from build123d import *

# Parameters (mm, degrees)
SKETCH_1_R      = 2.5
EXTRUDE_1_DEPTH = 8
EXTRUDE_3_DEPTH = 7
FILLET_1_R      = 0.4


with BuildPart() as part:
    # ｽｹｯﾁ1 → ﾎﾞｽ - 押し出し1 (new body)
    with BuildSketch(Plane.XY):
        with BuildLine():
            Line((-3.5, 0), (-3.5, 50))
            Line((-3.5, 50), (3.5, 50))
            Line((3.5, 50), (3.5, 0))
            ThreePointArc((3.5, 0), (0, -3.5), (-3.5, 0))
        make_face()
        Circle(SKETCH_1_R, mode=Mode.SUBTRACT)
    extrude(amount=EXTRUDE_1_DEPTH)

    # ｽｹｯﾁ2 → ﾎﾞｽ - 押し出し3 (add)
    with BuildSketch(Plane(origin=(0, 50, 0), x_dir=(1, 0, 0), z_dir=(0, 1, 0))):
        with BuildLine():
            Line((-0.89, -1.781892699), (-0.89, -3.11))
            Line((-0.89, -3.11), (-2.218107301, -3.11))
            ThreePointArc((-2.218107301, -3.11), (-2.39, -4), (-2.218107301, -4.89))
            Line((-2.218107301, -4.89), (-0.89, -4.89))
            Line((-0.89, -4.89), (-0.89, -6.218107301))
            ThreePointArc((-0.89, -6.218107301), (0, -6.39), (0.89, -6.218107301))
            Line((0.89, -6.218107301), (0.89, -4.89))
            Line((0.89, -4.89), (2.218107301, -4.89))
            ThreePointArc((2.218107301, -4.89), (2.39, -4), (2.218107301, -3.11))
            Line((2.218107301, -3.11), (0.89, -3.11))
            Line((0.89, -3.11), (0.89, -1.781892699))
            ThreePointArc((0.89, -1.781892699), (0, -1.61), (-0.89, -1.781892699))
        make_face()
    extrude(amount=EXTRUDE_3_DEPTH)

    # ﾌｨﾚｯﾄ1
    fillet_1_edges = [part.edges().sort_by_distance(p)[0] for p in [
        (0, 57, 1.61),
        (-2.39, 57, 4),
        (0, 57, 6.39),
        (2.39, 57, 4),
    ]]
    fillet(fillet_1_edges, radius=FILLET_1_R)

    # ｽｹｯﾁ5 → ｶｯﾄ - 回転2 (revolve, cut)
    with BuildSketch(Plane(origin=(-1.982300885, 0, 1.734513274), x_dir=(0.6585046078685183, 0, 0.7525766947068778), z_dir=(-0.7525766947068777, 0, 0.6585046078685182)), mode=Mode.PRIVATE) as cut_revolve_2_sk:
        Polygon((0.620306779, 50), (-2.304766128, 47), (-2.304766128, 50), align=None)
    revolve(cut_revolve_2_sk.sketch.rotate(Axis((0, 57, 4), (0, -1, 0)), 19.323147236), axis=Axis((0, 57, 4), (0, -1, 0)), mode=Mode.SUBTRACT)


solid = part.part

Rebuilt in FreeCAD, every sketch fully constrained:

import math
import FreeCAD as App
import Part
import Sketcher
from FreeCAD import Vector


def edges_at(feature, points):
    """Names of the edges that pass closest to the given points."""
    edges = feature.Shape.Edges
    near = lambda p: min(range(len(edges)), key=lambda i: edges[i].distToShape(Part.Vertex(*p))[0])
    return sorted({f"Edge{near(p) + 1}" for p in points})

doc = App.newDocument("Part")
params = doc.addObject("Spreadsheet::Sheet", "Params")
for row, (alias, value) in enumerate([
    ("sketch1_diameter", "5 mm"),
    ("sketch1_radius", "3.5 mm"),
    ("sketch1_height", "50 mm"),
    ("pad1_length", "8 mm"),
    ("sketch2_radius", "2.39 mm"),
    ("pad2_length", "7 mm"),
    ("fillet_radius", "0.4 mm"),
    ("sketch3_height", "3 mm"),
    ("groove_angle", "360 deg"),
], start=1):
    params.set(f"A{row}", alias)
    params.set(f"B{row}", "=" + value)
    params.setAlias(f"B{row}", alias)

body = doc.addObject("PartDesign::Body", "Body")

# Sketch on XY plane
sketch1 = body.newObject("Sketcher::SketchObject", "Sketch")
sketch1.AttachmentSupport = (doc.getObject("XY_Plane"), [""])
sketch1.MapMode = "FlatFace"
sketch1.addGeometry([
    Part.LineSegment(Vector(-3.5, 50, 0), Vector(-3.5, 0, 0)),  # 0
    Part.ArcOfCircle(Part.Circle(Vector(0, 0, 0), Vector(0, 0, 1), 3.5), math.radians(180), math.radians(360)),  # 1
    Part.LineSegment(Vector(3.5, 0, 0), Vector(3.5, 50, 0)),  # 2
    Part.LineSegment(Vector(3.5, 50, 0), Vector(-3.5, 50, 0)),  # 3
    Part.Circle(Vector(0, 0, 0), Vector(0, 0, 1), 2.5),  # 4
], False)
sketch1.addConstraint([
    Sketcher.Constraint("Tangent", 0, 2, 1, 1),
    Sketcher.Constraint("Tangent", 1, 2, 2, 1),
    Sketcher.Constraint("Coincident", 2, 2, 3, 1),
    Sketcher.Constraint("Coincident", 3, 2, 0, 1),
    Sketcher.Constraint("Vertical", 0),
    Sketcher.Constraint("Vertical", 2),
    Sketcher.Constraint("Horizontal", 3),
    Sketcher.Constraint("Coincident", 1, 3, -1, 1),
    Sketcher.Constraint("Coincident", 4, 3, -1, 1),
    Sketcher.Constraint("Diameter", 4, 5.0),
    Sketcher.Constraint("Radius", 1, 3.5),
    Sketcher.Constraint("DistanceY", 0, 2, 0, 1, 50.0),
])
sketch1.setExpression("Constraints[9]", "Params.sketch1_diameter")
sketch1.setExpression("Constraints[10]", "Params.sketch1_radius")
sketch1.setExpression("Constraints[11]", "Params.sketch1_height")
pad1 = body.newObject("PartDesign::Pad", "Pad")
pad1.Profile = sketch1
pad1.setExpression("Length", "Params.pad1_length")

# Sketch on XZ plane
sketch2 = body.newObject("Sketcher::SketchObject", "Sketch001")
sketch2.AttachmentSupport = (doc.getObject("XZ_Plane"), [""])
sketch2.MapMode = "FlatFace"
sketch2.AttachmentOffset = App.Placement(Vector(0, 0, -50), App.Rotation())
sketch2.addGeometry([
    Part.LineSegment(Vector(-0.89, 1.781893, 0), Vector(-0.89, 3.11, 0)),  # 0
    Part.LineSegment(Vector(-0.89, 3.11, 0), Vector(-2.218107, 3.11, 0)),  # 1
    Part.ArcOfCircle(Part.Circle(Vector(0, 4, 0), Vector(0, 0, 1), 2.39), math.radians(158.137222), math.radians(201.862778)),  # 2
    Part.LineSegment(Vector(-2.218107, 4.89, 0), Vector(-0.89, 4.89, 0)),  # 3
    Part.LineSegment(Vector(-0.89, 4.89, 0), Vector(-0.89, 6.218107, 0)),  # 4
    Part.ArcOfCircle(Part.Circle(Vector(0, 4, 0), Vector(0, 0, 1), 2.39), math.radians(68.137222), math.radians(111.862778)),  # 5
    Part.LineSegment(Vector(0.89, 6.218107, 0), Vector(0.89, 4.89, 0)),  # 6
    Part.LineSegment(Vector(0.89, 4.89, 0), Vector(2.218107, 4.89, 0)),  # 7
    Part.ArcOfCircle(Part.Circle(Vector(0, 4, 0), Vector(0, 0, 1), 2.39), math.radians(-21.862778), math.radians(21.862778)),  # 8
    Part.LineSegment(Vector(2.218107, 3.11, 0), Vector(0.89, 3.11, 0)),  # 9
    Part.LineSegment(Vector(0.89, 3.11, 0), Vector(0.89, 1.781893, 0)),  # 10
    Part.ArcOfCircle(Part.Circle(Vector(0, 4, 0), Vector(0, 0, 1), 2.39), math.radians(-111.862778), math.radians(-68.137222)),  # 11
], False)
sketch2.addConstraint([
    Sketcher.Constraint("Coincident", 0, 2, 1, 1),
    Sketcher.Constraint("Coincident", 1, 2, 2, 2),
    Sketcher.Constraint("Coincident", 2, 1, 3, 1),
    Sketcher.Constraint("Coincident", 3, 2, 4, 1),
    Sketcher.Constraint("Coincident", 4, 2, 5, 2),
    Sketcher.Constraint("Coincident", 5, 1, 6, 1),
    Sketcher.Constraint("Coincident", 6, 2, 7, 1),
    Sketcher.Constraint("Coincident", 7, 2, 8, 2),
    Sketcher.Constraint("Coincident", 8, 1, 9, 1),
    Sketcher.Constraint("Coincident", 9, 2, 10, 1),
    Sketcher.Constraint("Coincident", 10, 2, 11, 2),
    Sketcher.Constraint("Coincident", 11, 1, 0, 1),
    Sketcher.Constraint("Vertical", 0),
    Sketcher.Constraint("Horizontal", 1),
    Sketcher.Constraint("Horizontal", 3),
    Sketcher.Constraint("Vertical", 4),
    Sketcher.Constraint("Vertical", 6),
    Sketcher.Constraint("Horizontal", 7),
    Sketcher.Constraint("Horizontal", 9),
    Sketcher.Constraint("Vertical", 10),
    Sketcher.Constraint("Coincident", 5, 3, 2, 3),
    Sketcher.Constraint("Coincident", 8, 3, 2, 3),
    Sketcher.Constraint("Coincident", 11, 3, 2, 3),
    Sketcher.Constraint("Equal", 2, 5),
    Sketcher.Constraint("Equal", 5, 8),
    Sketcher.Constraint("Equal", 8, 11),
    Sketcher.Constraint("Symmetric", 4, 2, 5, 1, -2),
    Sketcher.Constraint("Symmetric", 0, 2, 9, 2, -2),
    Sketcher.Constraint("Horizontal", 3, 2, 6, 2),
    Sketcher.Constraint("Vertical", 1, 2, 2, 1),
    Sketcher.Constraint("Vertical", 0, 2, 3, 2),
    Sketcher.Constraint("Equal", 9, 0),
    Sketcher.Constraint("Radius", 2, 2.39),
    Sketcher.Constraint("DistanceY", -1, 1, 2, 3, 4.0),
    Sketcher.Constraint("DistanceX", 0, 2, -1, 1, 0.89),
])
sketch2.setExpression("Constraints[32]", "Params.sketch2_radius")
pad2 = body.newObject("PartDesign::Pad", "Pad001")
pad2.Profile = sketch2
pad2.setExpression("Length", "Params.pad2_length")
pad2.Reversed = True
doc.recompute()

fillet = body.newObject("PartDesign::Fillet", "Fillet")
fillet.Base = (pad2, edges_at(pad2, [
    (0, 57, 1.61),
    (-2.39, 57, 4),
    (0, 57, 6.39),
    (2.39, 57, 4),
]))
fillet.setExpression("Radius", "Params.fillet_radius")

# Sketch on an angled plane
sketch3 = body.newObject("Sketcher::SketchObject", "Sketch002")
sketch3.Placement = App.Placement(Vector(-1.982301, 0, 1.734513), App.Rotation(Vector(0.658504608, 0, 0.752576695), Vector(0, 1.000000001, 0), Vector(-0.752576695, 0, 0.658504608), "ZXY"))
sketch3.addGeometry([
    Part.LineSegment(Vector(-2.304766, 47, 0), Vector(0.620307, 50, 0)),
    Part.LineSegment(Vector(0.620307, 50, 0), Vector(-2.304766, 50, 0)),
    Part.LineSegment(Vector(-2.304766, 50, 0), Vector(-2.304766, 47, 0)),
], False)
sketch3.addGeometry(Part.LineSegment(Vector(3.010307, 50, 0), Vector(3.010307, 47, 0)), True)  # axis
sketch3.addConstraint([
    Sketcher.Constraint("Coincident", 0, 2, 1, 1),
    Sketcher.Constraint("Coincident", 1, 2, 2, 1),
    Sketcher.Constraint("Coincident", 2, 2, 0, 1),
    Sketcher.Constraint("Horizontal", 1),
    Sketcher.Constraint("Vertical", 2),
    Sketcher.Constraint("Vertical", 3),
    Sketcher.Constraint("Horizontal", 1, 2, 3, 1),
    Sketcher.Constraint("Horizontal", 2, 2, 3, 2),
    Sketcher.Constraint("DistanceY", 2, 2, 2, 1, 3.0),
    Sketcher.Constraint("DistanceY", -1, 1, 0, 2, 50.0),
    Sketcher.Constraint("DistanceX", 0, 2, 3, 1, 2.39),
    Sketcher.Constraint("DistanceX", 1, 2, 1, 1, 2.925073),
    Sketcher.Constraint("DistanceX", -1, 1, 0, 2, 0.620307),
])
sketch3.setExpression("Constraints[8]", "Params.sketch3_height")
groove = body.newObject("PartDesign::Groove", "Groove")
groove.Profile = sketch3
groove.ReferenceAxis = (sketch3, ["Axis0"])
groove.setExpression("Angle", "Params.groove_angle")

doc.recompute()
